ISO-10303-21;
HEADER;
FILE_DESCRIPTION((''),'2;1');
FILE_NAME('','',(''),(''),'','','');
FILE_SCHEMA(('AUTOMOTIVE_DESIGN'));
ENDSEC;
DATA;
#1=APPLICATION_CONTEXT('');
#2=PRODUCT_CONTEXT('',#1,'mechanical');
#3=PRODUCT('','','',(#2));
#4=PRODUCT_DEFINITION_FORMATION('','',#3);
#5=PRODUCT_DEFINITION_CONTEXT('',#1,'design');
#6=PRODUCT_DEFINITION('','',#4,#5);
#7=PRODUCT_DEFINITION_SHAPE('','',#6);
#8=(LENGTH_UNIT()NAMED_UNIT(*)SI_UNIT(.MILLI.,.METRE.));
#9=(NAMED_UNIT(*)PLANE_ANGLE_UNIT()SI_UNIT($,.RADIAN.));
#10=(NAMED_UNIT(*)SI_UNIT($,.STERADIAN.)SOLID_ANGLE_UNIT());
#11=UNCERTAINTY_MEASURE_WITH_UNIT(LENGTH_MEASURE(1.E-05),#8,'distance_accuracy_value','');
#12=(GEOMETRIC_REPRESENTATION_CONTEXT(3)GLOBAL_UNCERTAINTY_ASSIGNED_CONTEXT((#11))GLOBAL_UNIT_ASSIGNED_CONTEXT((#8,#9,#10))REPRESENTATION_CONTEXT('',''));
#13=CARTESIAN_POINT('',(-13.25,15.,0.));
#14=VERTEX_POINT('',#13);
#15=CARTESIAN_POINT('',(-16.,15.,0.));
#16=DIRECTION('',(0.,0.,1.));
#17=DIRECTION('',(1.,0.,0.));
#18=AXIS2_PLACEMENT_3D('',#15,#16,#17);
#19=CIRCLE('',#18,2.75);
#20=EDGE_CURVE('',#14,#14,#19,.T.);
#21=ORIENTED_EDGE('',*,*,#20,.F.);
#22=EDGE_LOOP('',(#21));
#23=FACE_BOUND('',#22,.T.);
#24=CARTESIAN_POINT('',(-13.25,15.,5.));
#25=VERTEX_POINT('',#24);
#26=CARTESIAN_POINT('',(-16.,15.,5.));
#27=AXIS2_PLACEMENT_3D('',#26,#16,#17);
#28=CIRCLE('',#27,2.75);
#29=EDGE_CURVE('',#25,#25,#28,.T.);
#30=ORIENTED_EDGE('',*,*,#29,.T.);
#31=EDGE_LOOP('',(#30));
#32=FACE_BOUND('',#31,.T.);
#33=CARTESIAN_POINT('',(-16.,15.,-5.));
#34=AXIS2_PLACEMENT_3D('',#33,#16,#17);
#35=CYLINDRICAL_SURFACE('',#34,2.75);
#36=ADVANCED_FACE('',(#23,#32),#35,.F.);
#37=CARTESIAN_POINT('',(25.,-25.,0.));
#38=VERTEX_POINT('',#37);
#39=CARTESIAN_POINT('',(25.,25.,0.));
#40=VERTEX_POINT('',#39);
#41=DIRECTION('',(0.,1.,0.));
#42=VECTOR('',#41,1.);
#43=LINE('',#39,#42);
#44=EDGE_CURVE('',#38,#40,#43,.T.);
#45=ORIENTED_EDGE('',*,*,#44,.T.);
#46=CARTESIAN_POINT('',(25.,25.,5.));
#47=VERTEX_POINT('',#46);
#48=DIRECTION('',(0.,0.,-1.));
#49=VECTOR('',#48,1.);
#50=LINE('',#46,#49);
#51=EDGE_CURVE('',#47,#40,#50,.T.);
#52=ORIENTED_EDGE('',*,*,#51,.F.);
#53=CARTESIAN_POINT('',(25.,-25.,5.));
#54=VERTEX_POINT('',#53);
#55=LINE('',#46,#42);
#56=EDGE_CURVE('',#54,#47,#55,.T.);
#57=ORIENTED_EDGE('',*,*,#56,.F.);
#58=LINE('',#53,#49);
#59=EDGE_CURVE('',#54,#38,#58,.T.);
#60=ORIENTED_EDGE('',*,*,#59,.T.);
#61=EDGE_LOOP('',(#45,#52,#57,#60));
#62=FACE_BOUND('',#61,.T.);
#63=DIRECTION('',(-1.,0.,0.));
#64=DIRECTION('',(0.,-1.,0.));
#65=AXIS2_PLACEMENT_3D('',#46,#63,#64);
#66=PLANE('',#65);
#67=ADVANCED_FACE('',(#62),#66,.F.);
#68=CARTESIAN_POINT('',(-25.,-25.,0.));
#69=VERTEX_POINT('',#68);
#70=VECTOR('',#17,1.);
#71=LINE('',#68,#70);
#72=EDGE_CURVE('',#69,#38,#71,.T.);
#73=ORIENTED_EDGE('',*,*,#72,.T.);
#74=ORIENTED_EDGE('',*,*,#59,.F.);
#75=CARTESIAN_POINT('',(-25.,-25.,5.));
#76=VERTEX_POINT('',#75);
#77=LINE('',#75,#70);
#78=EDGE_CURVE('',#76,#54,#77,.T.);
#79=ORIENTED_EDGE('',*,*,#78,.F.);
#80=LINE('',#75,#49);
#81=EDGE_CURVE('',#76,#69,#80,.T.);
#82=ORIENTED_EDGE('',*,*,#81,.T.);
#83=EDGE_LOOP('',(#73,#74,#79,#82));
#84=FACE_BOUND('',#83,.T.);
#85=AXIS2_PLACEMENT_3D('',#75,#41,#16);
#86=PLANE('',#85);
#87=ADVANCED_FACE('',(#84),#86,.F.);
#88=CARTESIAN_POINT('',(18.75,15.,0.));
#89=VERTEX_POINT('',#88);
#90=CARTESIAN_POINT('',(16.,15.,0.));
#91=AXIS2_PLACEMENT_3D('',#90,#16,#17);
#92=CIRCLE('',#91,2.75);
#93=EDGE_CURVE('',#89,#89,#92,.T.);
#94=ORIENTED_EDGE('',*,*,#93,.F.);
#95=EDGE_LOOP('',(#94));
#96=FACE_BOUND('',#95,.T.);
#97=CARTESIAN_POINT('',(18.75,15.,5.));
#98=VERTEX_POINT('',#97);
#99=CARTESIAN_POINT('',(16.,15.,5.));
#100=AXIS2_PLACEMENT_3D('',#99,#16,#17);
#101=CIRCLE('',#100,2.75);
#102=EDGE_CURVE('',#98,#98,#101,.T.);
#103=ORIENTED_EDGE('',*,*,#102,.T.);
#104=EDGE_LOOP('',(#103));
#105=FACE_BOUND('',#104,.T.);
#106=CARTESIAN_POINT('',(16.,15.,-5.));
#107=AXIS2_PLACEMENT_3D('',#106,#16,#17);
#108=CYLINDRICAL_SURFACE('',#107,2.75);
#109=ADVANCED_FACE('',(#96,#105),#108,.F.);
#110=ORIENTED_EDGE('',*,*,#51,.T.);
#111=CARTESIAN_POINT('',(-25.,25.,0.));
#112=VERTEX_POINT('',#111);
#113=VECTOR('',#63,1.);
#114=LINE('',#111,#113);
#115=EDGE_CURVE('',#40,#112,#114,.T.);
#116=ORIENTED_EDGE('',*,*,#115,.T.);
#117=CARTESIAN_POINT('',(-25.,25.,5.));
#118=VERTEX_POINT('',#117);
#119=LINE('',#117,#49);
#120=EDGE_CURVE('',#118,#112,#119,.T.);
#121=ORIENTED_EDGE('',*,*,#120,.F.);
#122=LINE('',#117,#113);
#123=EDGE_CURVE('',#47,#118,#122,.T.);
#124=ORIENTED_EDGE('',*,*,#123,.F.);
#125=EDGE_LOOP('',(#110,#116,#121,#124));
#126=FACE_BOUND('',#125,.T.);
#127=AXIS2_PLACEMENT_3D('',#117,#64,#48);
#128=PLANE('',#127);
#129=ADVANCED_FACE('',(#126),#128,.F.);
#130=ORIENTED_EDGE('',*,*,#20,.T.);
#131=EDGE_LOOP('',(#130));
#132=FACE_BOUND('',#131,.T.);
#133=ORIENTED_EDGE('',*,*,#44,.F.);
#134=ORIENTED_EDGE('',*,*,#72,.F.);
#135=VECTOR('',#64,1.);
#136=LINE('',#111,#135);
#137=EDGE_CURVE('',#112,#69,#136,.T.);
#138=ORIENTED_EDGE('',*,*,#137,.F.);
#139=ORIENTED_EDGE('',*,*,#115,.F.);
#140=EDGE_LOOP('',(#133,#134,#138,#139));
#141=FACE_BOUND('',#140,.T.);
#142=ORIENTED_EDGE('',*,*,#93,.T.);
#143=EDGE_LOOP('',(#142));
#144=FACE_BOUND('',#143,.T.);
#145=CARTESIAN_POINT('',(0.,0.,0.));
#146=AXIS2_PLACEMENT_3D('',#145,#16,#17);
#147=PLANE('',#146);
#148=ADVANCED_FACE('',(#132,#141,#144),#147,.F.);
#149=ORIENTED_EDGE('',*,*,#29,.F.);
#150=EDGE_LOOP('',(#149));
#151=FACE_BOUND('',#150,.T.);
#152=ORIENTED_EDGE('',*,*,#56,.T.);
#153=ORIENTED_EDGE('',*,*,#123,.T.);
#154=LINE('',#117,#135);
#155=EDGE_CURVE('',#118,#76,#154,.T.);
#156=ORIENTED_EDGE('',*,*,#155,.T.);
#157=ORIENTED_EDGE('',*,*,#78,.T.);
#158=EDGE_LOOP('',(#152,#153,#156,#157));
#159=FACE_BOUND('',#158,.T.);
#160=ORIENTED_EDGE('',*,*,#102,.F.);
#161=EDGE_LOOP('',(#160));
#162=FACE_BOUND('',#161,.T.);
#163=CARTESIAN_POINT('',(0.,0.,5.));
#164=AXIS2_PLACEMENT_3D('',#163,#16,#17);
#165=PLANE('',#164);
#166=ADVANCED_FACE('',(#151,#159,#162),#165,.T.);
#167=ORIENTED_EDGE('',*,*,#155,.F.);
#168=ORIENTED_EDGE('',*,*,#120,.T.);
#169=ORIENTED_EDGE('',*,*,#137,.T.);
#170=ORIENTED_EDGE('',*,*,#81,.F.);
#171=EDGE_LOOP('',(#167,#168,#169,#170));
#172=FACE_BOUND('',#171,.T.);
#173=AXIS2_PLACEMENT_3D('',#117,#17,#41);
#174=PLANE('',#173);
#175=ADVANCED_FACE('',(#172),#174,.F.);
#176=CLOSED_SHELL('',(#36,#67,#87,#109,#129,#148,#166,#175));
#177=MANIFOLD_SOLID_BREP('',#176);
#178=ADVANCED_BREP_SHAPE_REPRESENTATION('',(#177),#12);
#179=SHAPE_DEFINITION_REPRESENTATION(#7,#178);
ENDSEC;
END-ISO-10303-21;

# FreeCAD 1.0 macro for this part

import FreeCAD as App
import Part
import Sketcher
from FreeCAD import Vector
Q = App.Units.Quantity

doc = App.newDocument("Part")
params = doc.addObject("Spreadsheet::Sheet", "Params")
for row, (alias, value) in enumerate([
    ("sketch1_width", "50 mm"),
    ("pad1_length", "5 mm"),
    ("sketch2_diameter", "5.5 mm"),
    ("pocket1_length", "10 mm"),
], start=1):
    params.set(f"A{row}", alias)
    params.set(f"B{row}", "=" + value)
    params.setAlias(f"B{row}", alias)

body = doc.addObject("PartDesign::Body", "Body")

# Sketch on XY plane
sketch1 = doc.addObject("Sketcher::SketchObject", "Sketch")
body.addObject(sketch1)
sketch1.AttachmentSupport = (doc.XY_Plane, [""])
sketch1.MapMode = "FlatFace"
sketch1.addGeometry([
    Part.LineSegment(Vector(-25, 25, 0), Vector(-25, -25, 0)),
    Part.LineSegment(Vector(-25, -25, 0), Vector(25, -25, 0)),
    Part.LineSegment(Vector(25, -25, 0), Vector(25, 25, 0)),
    Part.LineSegment(Vector(25, 25, 0), Vector(-25, 25, 0)),
], False)
sketch1.addConstraint([
    Sketcher.Constraint("Coincident", 0, 2, 1, 1),
    Sketcher.Constraint("Coincident", 1, 2, 2, 1),
    Sketcher.Constraint("Coincident", 2, 2, 3, 1),
    Sketcher.Constraint("Coincident", 3, 2, 0, 1),
    Sketcher.Constraint("Vertical", 0),
    Sketcher.Constraint("Horizontal", 1),
    Sketcher.Constraint("Vertical", 2),
    Sketcher.Constraint("Horizontal", 3),
    Sketcher.Constraint("Symmetric", 0, 2, 2, 2, -1, 1),
    Sketcher.Constraint("Equal", 3, 0),
    Sketcher.Constraint("DistanceX", 1, 1, 1, 2, Q("50 mm")),
])
sketch1.setExpression("Constraints[10]", "Params.sketch1_width")
pad1 = doc.addObject("PartDesign::Pad", "Pad")
body.addObject(pad1)
pad1.Profile = sketch1
pad1.setExpression("Length", "Params.pad1_length")

# Sketch on XY plane
sketch2 = doc.addObject("Sketcher::SketchObject", "Sketch001")
body.addObject(sketch2)
sketch2.AttachmentSupport = (doc.XY_Plane, [""])
sketch2.MapMode = "FlatFace"
sketch2.AttachmentOffset = App.Placement(Vector(0, 0, 5), App.Rotation())
sketch2.addGeometry([
    Part.Circle(Vector(-16, 15, 0), Vector(0, 0, 1), 2.8),
    Part.Circle(Vector(16, 15, 0), Vector(0, 0, 1), 2.8),
], False)
sketch2.addConstraint([
    Sketcher.Constraint("Equal", 0, 1),
    Sketcher.Constraint("Symmetric", 0, 3, 1, 3, -2),
    Sketcher.Constraint("Diameter", 0, Q("5.5 mm")),
    Sketcher.Constraint("DistanceX", 0, 3, -1, 1, Q("16 mm")),
    Sketcher.Constraint("DistanceY", -1, 1, 0, 3, Q("15 mm")),
])
sketch2.setExpression("Constraints[2]", "Params.sketch2_diameter")
pocket1 = doc.addObject("PartDesign::Pocket", "Pocket")
body.addObject(pocket1)
pocket1.Profile = sketch2
pocket1.setExpression("Length", "Params.pocket1_length")

doc.recompute()
